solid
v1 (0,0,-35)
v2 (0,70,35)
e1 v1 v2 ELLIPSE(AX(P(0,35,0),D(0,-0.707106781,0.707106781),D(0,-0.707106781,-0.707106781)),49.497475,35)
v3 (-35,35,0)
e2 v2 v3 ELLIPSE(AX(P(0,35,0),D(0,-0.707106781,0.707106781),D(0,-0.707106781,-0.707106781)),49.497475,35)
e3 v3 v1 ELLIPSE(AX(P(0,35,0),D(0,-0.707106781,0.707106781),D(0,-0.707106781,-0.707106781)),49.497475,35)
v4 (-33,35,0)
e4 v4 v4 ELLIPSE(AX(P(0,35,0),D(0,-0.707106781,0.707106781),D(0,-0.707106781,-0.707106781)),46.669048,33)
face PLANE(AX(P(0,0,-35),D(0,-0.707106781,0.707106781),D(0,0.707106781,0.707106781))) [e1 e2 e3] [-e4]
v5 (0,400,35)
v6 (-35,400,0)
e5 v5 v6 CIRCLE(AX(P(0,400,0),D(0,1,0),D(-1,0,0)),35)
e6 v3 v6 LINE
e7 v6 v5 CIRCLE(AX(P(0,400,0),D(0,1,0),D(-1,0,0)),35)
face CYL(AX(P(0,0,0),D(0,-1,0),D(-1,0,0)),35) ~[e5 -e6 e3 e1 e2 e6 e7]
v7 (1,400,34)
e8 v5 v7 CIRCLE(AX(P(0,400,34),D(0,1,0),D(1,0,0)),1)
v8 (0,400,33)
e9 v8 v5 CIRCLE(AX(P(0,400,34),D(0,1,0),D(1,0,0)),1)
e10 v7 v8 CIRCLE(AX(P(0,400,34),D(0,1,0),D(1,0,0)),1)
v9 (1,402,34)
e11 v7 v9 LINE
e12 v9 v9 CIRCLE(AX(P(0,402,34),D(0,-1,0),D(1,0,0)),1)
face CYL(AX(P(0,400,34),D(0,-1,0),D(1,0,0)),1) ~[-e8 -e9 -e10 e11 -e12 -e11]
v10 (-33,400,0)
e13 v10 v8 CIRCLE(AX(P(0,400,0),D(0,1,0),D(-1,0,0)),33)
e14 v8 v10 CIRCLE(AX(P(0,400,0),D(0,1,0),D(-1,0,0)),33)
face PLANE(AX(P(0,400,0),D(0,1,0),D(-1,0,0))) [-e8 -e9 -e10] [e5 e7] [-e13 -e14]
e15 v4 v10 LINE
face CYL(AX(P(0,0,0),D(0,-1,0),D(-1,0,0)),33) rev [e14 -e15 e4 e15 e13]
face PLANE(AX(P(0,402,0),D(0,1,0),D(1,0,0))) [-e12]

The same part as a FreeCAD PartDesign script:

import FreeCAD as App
import Part
import Sketcher
from FreeCAD import Vector
Q = App.Units.Quantity

doc = App.newDocument("Part")
params = doc.addObject("Spreadsheet::Sheet", "Params")
for row, (alias, value) in enumerate([
    ("sketch1_diameter", "70 mm"),
    ("sketch1_diameter2", "66 mm"),
    ("pad1_length", "400 mm"),
    ("sketch2_width", "70 mm"),
    ("sketch3_diameter", "2 mm"),
    ("pad2_length", "2 mm"),
], start=1):
    params.set(f"A{row}", alias)
    params.set(f"B{row}", "=" + value)
    params.setAlias(f"B{row}", alias)

body = doc.addObject("PartDesign::Body", "Body")

# Sketch on XZ plane
sketch1 = body.newObject("Sketcher::SketchObject", "Sketch")
sketch1.AttachmentSupport = (doc.getObject("XZ_Plane"), [""])
sketch1.MapMode = "FlatFace"
sketch1.addGeometry(Part.Circle(Vector(0, 0, 0), Vector(0, 0, 1), 35), False)
sketch1.addGeometry(Part.Circle(Vector(0, 0, 0), Vector(0, 0, 1), 33), False)
sketch1.addConstraint(Sketcher.Constraint("Coincident", 0, 3, -1, 1))
sketch1.addConstraint(Sketcher.Constraint("Coincident", 1, 3, -1, 1))
sketch1.addConstraint(Sketcher.Constraint("Diameter", 0, Q("70 mm")))
sketch1.addConstraint(Sketcher.Constraint("Diameter", 1, Q("66 mm")))
sketch1.setExpression("Constraints[2]", "Params.sketch1_diameter")
sketch1.setExpression("Constraints[3]", "Params.sketch1_diameter2")
pad1 = body.newObject("PartDesign::Pad", "Pad")
pad1.Profile = sketch1
pad1.setExpression("Length", "Params.pad1_length")
pad1.Reversed = True

# Sketch on YZ plane
sketch2 = body.newObject("Sketcher::SketchObject", "Sketch001")
sketch2.AttachmentSupport = (doc.getObject("YZ_Plane"), [""])
sketch2.MapMode = "FlatFace"
sketch2.addGeometry(Part.LineSegment(Vector(0, 35, 0), Vector(0, -35, 0)), False)
sketch2.addGeometry(Part.LineSegment(Vector(0, -35, 0), Vector(70, 35, 0)), False)
sketch2.addGeometry(Part.LineSegment(Vector(70, 35, 0), Vector(0, 35, 0)), False)
sketch2.addConstraint(Sketcher.Constraint("Coincident", 0, 2, 1, 1))
sketch2.addConstraint(Sketcher.Constraint("Coincident", 1, 2, 2, 1))
sketch2.addConstraint(Sketcher.Constraint("Coincident", 2, 2, 0, 1))
sketch2.addConstraint(Sketcher.Constraint("Vertical", 0))
sketch2.addConstraint(Sketcher.Constraint("Horizontal", 2))
sketch2.addConstraint(Sketcher.Constraint("Symmetric", 0, 2, 2, 2, -1, 1))
sketch2.addConstraint(Sketcher.Constraint("Equal", 2, 0))
sketch2.addConstraint(Sketcher.Constraint("DistanceX", 2, 2, 2, 1, Q("70 mm")))
sketch2.setExpression("Constraints[7]", "Params.sketch2_width")
pocket1 = body.newObject("PartDesign::Pocket", "Pocket")
pocket1.Profile = sketch2
pocket1.Type = "ThroughAll"
pocket1.Midplane = True

# Sketch on XZ plane
sketch3 = body.newObject("Sketcher::SketchObject", "Sketch002")
sketch3.AttachmentSupport = (doc.getObject("XZ_Plane"), [""])
sketch3.MapMode = "FlatFace"
sketch3.AttachmentOffset = App.Placement(Vector(0, 0, -400), App.Rotation())
sketch3.addGeometry(Part.Circle(Vector(0, 34, 0), Vector(0, 0, 1), 1), False)
sketch3.addConstraint(Sketcher.Constraint("PointOnObject", 0, 3, -2))
sketch3.addConstraint(Sketcher.Constraint("Diameter", 0, Q("2 mm")))
sketch3.addConstraint(Sketcher.Constraint("DistanceY", -1, 1, 0, 3, Q("34 mm")))
sketch3.setExpression("Constraints[1]", "Params.sketch3_diameter")
pad2 = body.newObject("PartDesign::Pad", "Pad001")
pad2.Profile = sketch3
pad2.setExpression("Length", "Params.pad2_length")
pad2.Reversed = True

doc.recompute()
